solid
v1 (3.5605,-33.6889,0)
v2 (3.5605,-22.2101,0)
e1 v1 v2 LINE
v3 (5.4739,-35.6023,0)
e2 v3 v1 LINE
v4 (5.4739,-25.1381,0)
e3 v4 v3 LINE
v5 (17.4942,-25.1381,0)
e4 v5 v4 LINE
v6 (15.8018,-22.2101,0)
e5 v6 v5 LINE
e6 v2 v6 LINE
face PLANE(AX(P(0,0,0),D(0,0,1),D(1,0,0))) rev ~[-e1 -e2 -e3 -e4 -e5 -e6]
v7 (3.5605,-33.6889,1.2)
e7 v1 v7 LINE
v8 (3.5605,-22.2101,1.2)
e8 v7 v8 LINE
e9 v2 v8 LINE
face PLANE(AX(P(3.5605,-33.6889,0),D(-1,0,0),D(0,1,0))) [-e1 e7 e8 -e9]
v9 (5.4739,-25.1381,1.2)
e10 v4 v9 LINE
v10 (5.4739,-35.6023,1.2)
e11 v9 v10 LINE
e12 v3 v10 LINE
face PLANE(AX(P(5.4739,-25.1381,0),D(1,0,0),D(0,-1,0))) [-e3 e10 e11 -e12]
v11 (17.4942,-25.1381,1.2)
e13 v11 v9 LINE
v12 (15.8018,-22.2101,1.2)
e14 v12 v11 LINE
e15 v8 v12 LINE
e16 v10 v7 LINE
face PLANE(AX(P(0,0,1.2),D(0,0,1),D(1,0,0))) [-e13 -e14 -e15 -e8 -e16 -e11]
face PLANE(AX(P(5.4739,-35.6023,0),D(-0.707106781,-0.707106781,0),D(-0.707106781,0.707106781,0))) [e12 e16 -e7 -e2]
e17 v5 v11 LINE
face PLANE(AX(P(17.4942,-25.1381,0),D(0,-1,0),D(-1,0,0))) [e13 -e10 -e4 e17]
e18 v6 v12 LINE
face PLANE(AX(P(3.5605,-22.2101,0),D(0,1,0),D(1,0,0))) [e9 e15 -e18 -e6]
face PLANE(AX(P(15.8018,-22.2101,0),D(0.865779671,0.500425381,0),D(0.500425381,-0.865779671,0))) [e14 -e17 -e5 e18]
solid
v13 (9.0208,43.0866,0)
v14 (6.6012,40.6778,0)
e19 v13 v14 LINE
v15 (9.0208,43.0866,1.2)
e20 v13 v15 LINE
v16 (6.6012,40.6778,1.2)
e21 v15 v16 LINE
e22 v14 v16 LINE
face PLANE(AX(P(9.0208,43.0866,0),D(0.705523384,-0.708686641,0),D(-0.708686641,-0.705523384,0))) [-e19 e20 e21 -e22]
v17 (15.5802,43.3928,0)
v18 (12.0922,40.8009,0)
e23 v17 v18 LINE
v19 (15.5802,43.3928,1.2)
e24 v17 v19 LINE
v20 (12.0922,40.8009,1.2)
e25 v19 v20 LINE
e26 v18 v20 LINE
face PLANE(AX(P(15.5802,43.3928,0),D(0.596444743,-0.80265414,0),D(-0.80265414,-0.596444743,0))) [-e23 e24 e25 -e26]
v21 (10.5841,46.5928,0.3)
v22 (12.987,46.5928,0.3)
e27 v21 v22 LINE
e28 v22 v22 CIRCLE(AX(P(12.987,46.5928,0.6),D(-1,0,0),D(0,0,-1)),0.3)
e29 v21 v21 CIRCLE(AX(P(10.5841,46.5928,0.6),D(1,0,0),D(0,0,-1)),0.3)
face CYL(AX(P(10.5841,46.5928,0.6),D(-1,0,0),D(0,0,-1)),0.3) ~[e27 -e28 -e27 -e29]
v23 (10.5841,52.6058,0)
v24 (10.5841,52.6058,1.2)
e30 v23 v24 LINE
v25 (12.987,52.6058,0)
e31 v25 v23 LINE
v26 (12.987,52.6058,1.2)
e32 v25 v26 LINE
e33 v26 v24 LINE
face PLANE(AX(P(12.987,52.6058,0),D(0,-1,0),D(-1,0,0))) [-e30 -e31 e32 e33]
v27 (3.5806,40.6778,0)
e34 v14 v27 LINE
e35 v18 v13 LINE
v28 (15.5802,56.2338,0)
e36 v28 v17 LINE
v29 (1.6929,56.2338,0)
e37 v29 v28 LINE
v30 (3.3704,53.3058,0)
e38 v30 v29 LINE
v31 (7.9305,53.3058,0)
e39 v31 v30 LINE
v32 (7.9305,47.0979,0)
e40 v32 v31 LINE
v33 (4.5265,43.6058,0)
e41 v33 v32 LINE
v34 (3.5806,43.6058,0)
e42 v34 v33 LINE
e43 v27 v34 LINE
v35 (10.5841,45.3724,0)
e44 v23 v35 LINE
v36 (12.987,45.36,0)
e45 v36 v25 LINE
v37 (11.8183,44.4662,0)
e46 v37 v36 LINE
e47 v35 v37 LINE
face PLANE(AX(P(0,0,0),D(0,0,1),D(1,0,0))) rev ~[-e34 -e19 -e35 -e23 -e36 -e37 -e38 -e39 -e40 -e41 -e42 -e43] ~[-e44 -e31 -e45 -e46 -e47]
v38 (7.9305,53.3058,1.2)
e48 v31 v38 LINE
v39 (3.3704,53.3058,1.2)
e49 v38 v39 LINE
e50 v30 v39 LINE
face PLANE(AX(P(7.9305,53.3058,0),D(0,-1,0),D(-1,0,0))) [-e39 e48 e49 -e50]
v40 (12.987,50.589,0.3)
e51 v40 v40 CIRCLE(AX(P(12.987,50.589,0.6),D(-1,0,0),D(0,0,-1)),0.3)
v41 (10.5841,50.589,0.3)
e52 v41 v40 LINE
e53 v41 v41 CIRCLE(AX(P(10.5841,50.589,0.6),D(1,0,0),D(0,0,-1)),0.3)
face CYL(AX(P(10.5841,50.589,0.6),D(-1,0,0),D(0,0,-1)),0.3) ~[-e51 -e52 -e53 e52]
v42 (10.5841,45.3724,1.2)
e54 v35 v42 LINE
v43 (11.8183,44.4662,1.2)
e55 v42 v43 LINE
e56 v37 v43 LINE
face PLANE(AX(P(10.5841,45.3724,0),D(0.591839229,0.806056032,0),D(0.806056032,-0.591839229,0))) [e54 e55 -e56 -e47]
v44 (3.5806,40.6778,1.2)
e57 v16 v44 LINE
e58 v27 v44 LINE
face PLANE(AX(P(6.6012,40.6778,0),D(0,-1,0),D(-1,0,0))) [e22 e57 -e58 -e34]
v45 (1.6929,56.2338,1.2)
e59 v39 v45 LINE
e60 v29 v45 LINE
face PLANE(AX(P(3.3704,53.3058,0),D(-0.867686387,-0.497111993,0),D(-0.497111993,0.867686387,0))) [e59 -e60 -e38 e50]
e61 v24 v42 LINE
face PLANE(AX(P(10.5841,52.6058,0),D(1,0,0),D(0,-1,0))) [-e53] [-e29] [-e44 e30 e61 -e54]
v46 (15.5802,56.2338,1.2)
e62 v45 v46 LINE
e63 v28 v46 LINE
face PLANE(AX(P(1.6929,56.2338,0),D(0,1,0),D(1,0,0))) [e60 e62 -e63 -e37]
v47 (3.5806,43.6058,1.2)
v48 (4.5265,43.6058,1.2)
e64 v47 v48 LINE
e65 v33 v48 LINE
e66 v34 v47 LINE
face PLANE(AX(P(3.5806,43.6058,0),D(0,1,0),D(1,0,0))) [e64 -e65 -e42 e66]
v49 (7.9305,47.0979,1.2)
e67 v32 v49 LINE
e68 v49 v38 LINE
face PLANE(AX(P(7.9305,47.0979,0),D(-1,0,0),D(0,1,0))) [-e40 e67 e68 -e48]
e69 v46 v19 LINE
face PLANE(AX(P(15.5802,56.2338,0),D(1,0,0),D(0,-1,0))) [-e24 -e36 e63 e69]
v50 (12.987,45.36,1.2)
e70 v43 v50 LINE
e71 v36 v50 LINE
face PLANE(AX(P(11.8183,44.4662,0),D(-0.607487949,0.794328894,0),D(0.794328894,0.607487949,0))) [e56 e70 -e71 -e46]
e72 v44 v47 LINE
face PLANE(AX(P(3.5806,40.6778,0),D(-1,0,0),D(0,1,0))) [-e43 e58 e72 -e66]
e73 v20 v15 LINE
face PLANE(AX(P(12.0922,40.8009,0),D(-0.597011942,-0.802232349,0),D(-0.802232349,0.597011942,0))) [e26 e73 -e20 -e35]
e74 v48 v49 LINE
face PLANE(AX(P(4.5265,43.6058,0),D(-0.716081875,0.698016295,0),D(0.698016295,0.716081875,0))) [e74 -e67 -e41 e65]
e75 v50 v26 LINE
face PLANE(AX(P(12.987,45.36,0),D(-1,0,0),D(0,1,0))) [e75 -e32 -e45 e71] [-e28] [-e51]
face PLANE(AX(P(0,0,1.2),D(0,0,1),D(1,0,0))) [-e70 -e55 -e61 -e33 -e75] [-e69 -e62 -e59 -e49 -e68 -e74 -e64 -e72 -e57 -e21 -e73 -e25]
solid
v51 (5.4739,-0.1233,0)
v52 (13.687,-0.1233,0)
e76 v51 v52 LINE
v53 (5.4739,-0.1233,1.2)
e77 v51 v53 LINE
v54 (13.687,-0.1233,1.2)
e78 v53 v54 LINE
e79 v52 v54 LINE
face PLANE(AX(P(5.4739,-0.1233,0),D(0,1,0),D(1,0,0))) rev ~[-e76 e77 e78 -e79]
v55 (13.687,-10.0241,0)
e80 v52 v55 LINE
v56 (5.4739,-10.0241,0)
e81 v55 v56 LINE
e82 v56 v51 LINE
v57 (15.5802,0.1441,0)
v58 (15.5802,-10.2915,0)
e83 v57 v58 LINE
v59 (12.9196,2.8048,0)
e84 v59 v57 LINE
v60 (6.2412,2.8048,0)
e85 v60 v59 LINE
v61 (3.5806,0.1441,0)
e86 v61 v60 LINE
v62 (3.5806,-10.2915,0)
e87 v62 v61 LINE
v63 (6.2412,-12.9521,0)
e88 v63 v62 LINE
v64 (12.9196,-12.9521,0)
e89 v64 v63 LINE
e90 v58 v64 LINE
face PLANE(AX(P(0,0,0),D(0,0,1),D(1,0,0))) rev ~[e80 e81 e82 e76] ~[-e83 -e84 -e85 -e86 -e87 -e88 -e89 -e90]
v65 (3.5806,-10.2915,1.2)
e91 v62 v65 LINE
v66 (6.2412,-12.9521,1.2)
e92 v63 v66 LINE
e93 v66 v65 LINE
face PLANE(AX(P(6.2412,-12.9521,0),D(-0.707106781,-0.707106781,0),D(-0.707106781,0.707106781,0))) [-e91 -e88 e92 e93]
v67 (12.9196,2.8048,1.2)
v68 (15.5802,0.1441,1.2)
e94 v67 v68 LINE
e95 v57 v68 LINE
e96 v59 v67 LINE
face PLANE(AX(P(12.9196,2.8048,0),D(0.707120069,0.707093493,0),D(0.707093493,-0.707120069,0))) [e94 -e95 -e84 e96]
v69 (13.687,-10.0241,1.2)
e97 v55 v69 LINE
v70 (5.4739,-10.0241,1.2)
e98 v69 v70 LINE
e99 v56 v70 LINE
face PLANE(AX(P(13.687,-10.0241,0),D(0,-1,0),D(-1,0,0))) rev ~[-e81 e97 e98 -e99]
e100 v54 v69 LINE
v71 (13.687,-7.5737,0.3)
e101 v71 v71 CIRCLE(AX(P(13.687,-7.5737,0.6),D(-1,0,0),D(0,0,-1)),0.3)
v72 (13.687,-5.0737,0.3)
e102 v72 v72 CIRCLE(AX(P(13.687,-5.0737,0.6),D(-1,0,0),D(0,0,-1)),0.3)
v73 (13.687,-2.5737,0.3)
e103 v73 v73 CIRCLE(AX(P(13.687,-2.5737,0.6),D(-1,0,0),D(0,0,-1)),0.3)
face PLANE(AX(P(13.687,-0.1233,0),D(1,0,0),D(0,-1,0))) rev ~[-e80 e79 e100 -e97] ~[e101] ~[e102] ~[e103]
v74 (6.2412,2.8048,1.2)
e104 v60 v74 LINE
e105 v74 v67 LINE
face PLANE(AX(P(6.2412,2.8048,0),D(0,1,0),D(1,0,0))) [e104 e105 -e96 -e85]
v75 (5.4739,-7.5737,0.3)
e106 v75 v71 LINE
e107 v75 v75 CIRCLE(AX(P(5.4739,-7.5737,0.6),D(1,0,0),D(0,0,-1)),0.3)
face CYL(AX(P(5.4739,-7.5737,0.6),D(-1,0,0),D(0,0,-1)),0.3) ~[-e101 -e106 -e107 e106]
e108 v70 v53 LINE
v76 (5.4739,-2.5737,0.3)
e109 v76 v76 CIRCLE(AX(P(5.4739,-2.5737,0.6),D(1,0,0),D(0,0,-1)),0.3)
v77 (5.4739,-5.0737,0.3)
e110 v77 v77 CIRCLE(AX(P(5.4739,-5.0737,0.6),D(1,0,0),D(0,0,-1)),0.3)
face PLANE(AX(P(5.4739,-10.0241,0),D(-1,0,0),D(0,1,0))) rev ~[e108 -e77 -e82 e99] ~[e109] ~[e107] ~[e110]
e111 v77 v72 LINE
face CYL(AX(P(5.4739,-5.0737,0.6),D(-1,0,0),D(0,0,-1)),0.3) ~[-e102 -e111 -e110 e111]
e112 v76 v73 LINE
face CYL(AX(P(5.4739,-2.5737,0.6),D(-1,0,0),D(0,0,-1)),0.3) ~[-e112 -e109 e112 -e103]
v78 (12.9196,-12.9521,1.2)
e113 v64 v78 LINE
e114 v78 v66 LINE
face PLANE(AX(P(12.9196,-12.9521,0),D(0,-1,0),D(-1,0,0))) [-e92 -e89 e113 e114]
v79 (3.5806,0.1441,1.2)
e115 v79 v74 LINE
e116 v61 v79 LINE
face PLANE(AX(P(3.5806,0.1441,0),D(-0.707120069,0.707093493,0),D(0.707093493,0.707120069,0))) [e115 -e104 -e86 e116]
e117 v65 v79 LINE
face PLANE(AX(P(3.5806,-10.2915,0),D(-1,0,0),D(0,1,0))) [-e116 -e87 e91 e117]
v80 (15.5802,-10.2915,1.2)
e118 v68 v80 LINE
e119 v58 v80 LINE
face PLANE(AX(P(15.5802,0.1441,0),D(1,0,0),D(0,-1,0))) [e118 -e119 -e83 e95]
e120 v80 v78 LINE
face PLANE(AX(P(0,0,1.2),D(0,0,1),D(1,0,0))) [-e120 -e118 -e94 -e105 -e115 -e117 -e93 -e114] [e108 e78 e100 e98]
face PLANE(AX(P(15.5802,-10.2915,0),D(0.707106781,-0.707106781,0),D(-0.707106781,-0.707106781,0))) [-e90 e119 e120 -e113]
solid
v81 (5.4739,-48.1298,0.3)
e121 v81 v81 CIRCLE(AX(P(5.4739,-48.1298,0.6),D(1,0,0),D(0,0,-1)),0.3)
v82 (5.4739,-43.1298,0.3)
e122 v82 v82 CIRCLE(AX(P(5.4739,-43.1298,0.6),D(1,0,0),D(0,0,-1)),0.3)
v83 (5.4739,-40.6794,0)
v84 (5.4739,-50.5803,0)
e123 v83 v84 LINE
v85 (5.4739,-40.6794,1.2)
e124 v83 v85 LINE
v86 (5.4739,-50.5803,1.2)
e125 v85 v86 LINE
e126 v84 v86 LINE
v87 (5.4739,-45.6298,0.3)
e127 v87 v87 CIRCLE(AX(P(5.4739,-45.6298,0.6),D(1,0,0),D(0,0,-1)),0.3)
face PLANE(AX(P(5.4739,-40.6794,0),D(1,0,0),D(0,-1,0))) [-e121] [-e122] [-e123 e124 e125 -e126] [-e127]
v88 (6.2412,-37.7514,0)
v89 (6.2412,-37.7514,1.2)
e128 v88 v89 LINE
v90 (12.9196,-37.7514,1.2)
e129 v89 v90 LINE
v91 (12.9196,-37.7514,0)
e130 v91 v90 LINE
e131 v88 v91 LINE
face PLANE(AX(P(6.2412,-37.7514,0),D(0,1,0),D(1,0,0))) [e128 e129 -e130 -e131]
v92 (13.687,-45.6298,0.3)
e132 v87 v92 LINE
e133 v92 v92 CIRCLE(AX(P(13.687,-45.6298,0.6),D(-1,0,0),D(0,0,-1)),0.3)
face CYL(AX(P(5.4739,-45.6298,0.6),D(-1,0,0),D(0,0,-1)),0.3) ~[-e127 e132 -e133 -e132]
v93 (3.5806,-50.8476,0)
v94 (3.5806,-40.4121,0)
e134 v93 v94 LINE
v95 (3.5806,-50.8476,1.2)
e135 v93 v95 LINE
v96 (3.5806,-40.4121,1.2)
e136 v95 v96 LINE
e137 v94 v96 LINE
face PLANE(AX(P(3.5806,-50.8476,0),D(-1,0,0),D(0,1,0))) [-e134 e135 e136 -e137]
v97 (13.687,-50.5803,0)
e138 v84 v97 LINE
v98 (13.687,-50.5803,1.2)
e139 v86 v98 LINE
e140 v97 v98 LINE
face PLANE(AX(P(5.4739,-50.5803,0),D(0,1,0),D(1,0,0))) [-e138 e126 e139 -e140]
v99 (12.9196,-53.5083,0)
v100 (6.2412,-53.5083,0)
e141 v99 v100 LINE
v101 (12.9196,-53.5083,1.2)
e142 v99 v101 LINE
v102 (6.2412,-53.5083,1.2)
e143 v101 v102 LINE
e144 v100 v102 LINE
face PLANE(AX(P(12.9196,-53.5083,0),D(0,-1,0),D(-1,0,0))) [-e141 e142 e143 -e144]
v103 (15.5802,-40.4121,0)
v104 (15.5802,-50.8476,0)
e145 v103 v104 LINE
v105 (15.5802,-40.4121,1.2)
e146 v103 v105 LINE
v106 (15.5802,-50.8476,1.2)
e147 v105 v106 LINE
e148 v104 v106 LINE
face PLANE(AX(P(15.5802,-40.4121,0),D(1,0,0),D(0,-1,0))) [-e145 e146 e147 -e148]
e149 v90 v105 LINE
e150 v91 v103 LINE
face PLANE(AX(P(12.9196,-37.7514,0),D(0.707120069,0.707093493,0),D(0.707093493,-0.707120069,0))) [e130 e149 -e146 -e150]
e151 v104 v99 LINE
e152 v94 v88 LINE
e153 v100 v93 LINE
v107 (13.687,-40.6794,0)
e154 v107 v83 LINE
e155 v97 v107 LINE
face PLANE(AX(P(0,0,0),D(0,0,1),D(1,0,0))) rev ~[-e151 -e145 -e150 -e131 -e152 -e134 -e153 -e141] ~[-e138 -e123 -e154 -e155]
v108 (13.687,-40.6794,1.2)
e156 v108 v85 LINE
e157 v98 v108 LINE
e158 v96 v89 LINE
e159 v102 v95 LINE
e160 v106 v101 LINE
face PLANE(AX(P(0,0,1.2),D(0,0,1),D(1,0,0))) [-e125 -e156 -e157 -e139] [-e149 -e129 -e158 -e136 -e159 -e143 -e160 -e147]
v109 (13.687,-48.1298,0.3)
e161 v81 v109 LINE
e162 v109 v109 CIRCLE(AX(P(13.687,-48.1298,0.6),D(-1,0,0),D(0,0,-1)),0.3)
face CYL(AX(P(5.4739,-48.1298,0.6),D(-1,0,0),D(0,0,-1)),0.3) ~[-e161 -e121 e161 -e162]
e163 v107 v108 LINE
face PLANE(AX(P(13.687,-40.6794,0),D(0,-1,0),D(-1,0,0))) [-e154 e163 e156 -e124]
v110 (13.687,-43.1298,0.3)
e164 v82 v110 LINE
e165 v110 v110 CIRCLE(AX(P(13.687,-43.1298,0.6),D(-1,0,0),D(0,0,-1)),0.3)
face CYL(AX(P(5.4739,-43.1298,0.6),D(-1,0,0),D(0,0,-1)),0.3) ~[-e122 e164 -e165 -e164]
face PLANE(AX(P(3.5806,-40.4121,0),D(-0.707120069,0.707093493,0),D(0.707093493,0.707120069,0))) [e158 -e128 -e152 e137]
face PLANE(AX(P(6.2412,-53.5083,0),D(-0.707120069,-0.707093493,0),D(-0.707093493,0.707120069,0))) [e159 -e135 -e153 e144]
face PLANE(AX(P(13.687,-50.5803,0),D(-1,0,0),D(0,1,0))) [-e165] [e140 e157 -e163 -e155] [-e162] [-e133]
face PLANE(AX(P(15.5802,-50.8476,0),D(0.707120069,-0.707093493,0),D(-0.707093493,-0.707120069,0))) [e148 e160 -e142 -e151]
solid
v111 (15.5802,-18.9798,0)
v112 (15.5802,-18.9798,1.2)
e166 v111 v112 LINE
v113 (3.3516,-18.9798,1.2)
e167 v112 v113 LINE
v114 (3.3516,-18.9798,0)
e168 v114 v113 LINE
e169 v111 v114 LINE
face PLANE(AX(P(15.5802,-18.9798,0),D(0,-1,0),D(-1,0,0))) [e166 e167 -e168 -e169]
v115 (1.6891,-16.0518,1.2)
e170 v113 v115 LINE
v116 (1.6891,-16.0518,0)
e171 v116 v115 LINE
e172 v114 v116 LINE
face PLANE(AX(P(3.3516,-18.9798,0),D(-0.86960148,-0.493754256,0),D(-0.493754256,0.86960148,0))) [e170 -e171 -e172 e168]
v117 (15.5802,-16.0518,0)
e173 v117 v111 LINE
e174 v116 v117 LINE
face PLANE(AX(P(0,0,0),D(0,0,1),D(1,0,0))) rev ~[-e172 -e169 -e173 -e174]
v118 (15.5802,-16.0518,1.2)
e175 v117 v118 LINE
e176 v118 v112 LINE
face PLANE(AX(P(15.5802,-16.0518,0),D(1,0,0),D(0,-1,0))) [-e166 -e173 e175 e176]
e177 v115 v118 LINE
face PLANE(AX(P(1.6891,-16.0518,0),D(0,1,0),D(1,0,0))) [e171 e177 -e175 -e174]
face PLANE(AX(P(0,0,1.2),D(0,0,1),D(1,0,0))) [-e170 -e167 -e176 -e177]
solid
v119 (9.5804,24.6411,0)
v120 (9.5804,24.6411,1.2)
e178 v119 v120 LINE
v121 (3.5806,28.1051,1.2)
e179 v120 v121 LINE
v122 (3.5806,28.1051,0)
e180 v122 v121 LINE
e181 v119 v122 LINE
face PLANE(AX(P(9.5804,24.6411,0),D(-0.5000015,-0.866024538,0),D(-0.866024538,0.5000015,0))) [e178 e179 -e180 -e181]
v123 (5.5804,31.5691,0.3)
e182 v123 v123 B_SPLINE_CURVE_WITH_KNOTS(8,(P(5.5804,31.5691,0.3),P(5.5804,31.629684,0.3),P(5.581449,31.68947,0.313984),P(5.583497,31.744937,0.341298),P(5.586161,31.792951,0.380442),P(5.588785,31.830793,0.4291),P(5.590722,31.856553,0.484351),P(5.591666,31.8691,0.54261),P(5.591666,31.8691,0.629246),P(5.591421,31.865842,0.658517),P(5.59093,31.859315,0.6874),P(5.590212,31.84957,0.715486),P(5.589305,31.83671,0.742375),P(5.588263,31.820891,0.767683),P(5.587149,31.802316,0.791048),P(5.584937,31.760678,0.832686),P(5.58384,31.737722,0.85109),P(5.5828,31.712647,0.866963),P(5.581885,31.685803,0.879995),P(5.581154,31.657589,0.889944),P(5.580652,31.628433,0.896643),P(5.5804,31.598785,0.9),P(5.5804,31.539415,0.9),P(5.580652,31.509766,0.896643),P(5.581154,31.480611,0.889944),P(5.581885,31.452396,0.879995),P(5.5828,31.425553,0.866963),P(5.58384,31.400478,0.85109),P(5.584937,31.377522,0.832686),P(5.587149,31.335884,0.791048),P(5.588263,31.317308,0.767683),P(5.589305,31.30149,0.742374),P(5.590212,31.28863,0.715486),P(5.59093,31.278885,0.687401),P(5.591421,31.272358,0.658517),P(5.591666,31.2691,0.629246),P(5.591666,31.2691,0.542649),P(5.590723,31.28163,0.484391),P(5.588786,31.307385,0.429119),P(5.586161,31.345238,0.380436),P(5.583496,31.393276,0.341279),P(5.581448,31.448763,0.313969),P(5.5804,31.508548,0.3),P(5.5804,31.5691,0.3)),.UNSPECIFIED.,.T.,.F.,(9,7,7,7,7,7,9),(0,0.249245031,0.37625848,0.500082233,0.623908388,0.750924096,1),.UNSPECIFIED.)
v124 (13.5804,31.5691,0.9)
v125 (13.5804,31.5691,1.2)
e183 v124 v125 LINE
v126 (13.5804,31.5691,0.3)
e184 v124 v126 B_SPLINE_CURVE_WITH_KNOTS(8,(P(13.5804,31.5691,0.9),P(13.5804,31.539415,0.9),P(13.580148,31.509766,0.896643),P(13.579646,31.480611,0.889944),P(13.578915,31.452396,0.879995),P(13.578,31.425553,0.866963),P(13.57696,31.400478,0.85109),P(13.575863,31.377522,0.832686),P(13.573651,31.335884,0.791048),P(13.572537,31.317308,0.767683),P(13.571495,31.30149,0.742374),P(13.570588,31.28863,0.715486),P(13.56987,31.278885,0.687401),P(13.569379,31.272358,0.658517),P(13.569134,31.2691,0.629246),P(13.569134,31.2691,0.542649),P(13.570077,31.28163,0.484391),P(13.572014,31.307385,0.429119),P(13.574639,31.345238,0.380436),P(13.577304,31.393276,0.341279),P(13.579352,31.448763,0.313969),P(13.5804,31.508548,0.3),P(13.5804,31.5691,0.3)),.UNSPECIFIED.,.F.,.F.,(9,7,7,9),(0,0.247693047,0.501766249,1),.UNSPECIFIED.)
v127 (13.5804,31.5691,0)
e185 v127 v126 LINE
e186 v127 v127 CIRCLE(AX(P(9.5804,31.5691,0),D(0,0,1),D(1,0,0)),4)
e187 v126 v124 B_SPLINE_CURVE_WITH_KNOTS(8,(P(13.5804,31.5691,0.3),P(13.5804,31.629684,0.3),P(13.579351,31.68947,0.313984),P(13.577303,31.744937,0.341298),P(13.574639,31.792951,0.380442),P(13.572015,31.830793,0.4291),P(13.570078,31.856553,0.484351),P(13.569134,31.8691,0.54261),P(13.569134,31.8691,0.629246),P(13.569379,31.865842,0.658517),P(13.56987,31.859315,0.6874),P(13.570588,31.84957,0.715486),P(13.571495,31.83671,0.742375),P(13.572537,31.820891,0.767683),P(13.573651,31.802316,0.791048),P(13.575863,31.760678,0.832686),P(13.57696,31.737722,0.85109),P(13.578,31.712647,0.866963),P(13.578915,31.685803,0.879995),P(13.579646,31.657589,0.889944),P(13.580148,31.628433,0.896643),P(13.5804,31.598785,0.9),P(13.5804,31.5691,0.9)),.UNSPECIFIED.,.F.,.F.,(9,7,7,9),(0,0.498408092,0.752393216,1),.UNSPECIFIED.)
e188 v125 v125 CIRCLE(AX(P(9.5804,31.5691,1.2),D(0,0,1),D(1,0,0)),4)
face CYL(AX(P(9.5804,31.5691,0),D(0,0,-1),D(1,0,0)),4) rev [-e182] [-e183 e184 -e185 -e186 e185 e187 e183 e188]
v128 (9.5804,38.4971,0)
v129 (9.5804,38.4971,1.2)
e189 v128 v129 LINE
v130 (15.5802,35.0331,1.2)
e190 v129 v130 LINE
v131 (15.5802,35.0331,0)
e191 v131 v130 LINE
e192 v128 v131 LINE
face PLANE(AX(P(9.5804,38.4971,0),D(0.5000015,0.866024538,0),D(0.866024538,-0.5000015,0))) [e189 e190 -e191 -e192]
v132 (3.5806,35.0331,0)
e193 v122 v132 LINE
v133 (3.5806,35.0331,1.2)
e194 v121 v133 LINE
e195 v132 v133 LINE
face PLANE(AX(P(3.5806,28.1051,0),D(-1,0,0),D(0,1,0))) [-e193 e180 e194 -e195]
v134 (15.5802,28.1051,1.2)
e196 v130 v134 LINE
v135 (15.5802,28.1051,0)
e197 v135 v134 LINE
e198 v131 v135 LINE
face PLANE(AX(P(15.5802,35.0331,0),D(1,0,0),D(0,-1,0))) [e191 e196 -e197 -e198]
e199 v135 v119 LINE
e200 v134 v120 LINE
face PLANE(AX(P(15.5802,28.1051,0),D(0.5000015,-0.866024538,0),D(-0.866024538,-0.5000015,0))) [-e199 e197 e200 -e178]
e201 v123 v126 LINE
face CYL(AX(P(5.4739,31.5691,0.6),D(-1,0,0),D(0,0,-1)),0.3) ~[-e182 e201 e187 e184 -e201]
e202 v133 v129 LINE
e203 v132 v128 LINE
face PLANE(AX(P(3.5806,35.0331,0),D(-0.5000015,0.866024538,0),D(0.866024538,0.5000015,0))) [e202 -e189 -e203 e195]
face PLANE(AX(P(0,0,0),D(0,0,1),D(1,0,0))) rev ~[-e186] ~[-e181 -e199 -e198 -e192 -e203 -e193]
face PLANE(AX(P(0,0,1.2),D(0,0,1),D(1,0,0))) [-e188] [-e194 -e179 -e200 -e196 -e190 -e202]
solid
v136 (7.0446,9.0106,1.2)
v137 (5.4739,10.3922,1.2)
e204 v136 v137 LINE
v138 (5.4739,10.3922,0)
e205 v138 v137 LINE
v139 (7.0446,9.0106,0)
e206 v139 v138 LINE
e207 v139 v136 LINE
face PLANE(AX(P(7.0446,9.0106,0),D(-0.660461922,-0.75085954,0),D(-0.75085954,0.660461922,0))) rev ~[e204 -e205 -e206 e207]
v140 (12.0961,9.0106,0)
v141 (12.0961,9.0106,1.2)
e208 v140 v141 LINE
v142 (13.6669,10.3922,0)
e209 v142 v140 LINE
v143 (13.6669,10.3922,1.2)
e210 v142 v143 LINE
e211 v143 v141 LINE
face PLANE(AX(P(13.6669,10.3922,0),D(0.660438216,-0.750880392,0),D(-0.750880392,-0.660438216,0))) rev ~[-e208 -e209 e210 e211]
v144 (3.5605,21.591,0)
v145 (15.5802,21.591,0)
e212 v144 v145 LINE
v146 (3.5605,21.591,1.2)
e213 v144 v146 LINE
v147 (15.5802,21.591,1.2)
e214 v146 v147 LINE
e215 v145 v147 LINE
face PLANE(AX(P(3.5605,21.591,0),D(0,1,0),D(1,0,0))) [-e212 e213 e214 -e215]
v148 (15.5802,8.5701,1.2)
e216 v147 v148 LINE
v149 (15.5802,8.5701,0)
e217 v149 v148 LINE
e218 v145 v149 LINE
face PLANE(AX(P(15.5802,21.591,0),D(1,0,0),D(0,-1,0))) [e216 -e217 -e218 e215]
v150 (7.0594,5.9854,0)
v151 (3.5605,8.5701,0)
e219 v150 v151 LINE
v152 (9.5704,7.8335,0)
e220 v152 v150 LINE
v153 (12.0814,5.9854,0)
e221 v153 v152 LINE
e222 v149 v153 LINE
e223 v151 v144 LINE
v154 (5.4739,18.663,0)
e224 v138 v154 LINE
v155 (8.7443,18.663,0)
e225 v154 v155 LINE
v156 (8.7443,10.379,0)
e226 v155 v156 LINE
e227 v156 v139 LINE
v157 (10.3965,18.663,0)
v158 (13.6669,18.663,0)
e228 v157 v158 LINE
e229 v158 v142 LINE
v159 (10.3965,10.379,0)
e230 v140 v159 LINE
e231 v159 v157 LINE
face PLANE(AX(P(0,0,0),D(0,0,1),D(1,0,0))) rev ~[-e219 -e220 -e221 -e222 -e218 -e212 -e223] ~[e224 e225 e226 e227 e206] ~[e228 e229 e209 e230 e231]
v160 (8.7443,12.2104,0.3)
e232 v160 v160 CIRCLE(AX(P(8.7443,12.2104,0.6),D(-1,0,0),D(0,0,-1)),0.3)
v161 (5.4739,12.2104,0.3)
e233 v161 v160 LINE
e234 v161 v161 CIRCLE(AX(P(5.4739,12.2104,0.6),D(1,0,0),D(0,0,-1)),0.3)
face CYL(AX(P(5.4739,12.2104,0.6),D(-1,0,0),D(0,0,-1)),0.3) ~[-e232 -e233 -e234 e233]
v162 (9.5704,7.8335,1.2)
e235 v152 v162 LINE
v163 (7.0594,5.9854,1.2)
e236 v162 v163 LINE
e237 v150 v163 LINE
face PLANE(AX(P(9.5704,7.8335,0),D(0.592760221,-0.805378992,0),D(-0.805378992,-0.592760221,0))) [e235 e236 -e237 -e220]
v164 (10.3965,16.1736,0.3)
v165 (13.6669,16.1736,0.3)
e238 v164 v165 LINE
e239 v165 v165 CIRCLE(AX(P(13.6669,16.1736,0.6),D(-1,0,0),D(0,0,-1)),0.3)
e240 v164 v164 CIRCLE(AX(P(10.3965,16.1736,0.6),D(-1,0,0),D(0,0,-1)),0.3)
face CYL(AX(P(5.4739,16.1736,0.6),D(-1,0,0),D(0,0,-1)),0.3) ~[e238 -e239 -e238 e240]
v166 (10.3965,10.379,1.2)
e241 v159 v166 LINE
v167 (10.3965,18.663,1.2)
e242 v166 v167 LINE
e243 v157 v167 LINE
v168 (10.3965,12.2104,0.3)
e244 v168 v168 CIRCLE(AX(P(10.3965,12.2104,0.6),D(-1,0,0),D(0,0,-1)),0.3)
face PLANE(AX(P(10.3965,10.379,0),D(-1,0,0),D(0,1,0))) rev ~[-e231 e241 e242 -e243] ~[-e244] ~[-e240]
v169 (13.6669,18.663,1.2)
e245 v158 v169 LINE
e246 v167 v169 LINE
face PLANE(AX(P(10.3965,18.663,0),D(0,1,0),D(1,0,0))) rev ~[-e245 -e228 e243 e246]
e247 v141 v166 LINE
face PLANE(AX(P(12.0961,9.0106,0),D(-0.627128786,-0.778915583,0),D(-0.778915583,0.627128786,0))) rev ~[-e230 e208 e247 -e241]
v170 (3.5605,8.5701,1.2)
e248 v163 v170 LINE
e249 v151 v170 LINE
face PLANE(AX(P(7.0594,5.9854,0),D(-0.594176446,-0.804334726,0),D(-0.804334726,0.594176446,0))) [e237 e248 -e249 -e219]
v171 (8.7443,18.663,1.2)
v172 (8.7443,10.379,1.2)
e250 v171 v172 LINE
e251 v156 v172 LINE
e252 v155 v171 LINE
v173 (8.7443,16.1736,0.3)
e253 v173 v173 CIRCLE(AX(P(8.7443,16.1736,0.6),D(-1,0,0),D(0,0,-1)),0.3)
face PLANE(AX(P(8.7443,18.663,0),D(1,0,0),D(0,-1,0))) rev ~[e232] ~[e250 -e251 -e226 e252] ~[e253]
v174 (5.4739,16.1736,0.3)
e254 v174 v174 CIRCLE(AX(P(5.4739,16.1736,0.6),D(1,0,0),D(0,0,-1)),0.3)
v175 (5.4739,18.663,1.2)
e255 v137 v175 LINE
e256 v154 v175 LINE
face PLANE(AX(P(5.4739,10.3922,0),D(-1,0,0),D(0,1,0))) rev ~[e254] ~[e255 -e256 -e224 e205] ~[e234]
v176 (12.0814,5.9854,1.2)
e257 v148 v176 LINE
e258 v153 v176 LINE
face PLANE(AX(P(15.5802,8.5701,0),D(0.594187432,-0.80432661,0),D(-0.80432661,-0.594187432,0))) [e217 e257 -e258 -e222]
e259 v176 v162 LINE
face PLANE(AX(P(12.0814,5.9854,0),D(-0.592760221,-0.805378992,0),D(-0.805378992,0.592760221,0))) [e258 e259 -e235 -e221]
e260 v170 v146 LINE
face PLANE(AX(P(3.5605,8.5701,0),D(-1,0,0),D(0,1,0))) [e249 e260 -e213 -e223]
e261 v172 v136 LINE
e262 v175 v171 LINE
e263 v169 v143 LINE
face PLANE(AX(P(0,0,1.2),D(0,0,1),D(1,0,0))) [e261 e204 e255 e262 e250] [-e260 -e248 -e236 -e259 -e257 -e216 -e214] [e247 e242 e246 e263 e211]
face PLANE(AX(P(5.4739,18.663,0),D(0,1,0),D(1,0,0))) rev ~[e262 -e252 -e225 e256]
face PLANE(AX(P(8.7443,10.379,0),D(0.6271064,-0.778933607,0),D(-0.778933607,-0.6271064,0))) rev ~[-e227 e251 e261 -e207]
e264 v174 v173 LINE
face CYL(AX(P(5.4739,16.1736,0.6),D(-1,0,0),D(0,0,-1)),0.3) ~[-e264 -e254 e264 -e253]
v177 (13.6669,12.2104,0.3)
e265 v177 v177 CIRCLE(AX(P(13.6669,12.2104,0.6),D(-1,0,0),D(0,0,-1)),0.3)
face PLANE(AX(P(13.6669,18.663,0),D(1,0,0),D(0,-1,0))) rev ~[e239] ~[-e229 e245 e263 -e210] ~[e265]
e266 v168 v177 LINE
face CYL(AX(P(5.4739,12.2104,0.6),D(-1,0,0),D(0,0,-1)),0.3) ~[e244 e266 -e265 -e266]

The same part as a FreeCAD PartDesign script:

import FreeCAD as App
import Part
import Sketcher
from FreeCAD import Vector
Q = App.Units.Quantity


def add_polygon(sketch, points):
    """Adds a closed chain of lines whose ends are joined by coincident constraints."""
    first, n = sketch.GeometryCount, len(points)
    for a, b in zip(points, points[1:] + points[:1]):
        sketch.addGeometry(Part.LineSegment(App.Vector(*a, 0), App.Vector(*b, 0)), False)
    for i in range(n):
        sketch.addConstraint(Sketcher.Constraint("Coincident", first + i, 2, first + (i + 1) % n, 1))

doc = App.newDocument("Part")
body = doc.addObject("PartDesign::Body", "Body")
body.AllowCompound = True

# Sketch on XY plane
sketch1 = doc.addObject("Sketcher::SketchObject", "Sketch")
body.addObject(sketch1)
sketch1.AttachmentSupport = (doc.XY_Plane, [""])
sketch1.MapMode = "FlatFace"
add_polygon(sketch1, [(12.0922, 40.8009), (15.5802, 43.3928), (15.5802, 56.2338), (1.6929, 56.2338), (3.3704, 53.3058), (7.9305, 53.3058), (7.9305, 47.0979), (4.5265, 43.6058), (3.5806, 43.6058), (3.5806, 40.6778), (6.6012, 40.6778), (9.0208, 43.0866)])  # lines 0-11
add_polygon(sketch1, [(12.987, 45.36), (11.8183, 44.4662), (10.5841, 45.3724), (10.5841, 52.6058), (12.987, 52.6058)])  # lines 12-16
add_polygon(sketch1, [(15.5802, 28.1051), (15.5802, 35.0331), (9.5804, 38.4971), (3.5806, 35.0331), (3.5806, 28.1051), (9.5804, 24.6411)])  # lines 17-22
sketch1.addGeometry(Part.Circle(Vector(9.5804, 31.5691, 0), Vector(0, 0, 1), 4), False)  # 23
add_polygon(sketch1, [(12.0814, 5.9854), (15.5802, 8.5701), (15.5802, 21.591), (3.5605, 21.591), (3.5605, 8.5701), (7.0594, 5.9854), (9.5704, 7.8335)])  # lines 24-30
add_polygon(sketch1, [(5.4739, 18.663), (8.7443, 18.663), (8.7443, 10.379), (7.0446, 9.0106), (5.4739, 10.3922)])  # lines 31-35
add_polygon(sketch1, [(10.3965, 18.663), (13.6669, 18.663), (13.6669, 10.3922), (12.0961, 9.0106), (10.3965, 10.379)])  # lines 36-40
add_polygon(sketch1, [(12.9196, -12.9521), (15.5802, -10.2915), (15.5802, 0.1441), (12.9196, 2.8048), (6.2412, 2.8048), (3.5806, 0.1441), (3.5806, -10.2915), (6.2412, -12.9521)])  # lines 41-48
add_polygon(sketch1, [(5.4739, -0.1233), (13.687, -0.1233), (13.687, -10.0241), (5.4739, -10.0241)])  # lines 49-52
add_polygon(sketch1, [(3.3516, -18.9798), (15.5802, -18.9798), (15.5802, -16.0518), (1.6891, -16.0518)])  # lines 53-56
add_polygon(sketch1, [(5.4739, -25.1381), (17.4942, -25.1381), (15.8018, -22.2101), (3.5605, -22.2101), (3.5605, -33.6889), (5.4739, -35.6023)])  # lines 57-62
add_polygon(sketch1, [(15.5802, -40.4121), (12.9196, -37.7514), (6.2412, -37.7514), (3.5806, -40.4121), (3.5806, -50.8476), (6.2412, -53.5083), (12.9196, -53.5083), (15.5802, -50.8476)])  # lines 63-70
add_polygon(sketch1, [(5.4739, -50.5803), (5.4739, -40.6794), (13.687, -40.6794), (13.687, -50.5803)])  # lines 71-74
sketch1.addConstraint([
    Sketcher.Constraint("Vertical", 1),
    Sketcher.Constraint("Horizontal", 2),
    Sketcher.Constraint("Horizontal", 4),
    Sketcher.Constraint("Vertical", 5),
    Sketcher.Constraint("Horizontal", 7),
    Sketcher.Constraint("Vertical", 8),
    Sketcher.Constraint("Horizontal", 9),
    Sketcher.Constraint("Vertical", 14),
    Sketcher.Constraint("Horizontal", 15),
    Sketcher.Constraint("Vertical", 16),
    Sketcher.Constraint("Vertical", 17),
    Sketcher.Constraint("Vertical", 20),
    Sketcher.Constraint("Vertical", 25),
    Sketcher.Constraint("Horizontal", 26),
    Sketcher.Constraint("Vertical", 27),
    Sketcher.Constraint("Horizontal", 31),
    Sketcher.Constraint("Vertical", 32),
    Sketcher.Constraint("Vertical", 35),
    Sketcher.Constraint("Horizontal", 36),
    Sketcher.Constraint("Vertical", 37),
    Sketcher.Constraint("Vertical", 40),
    Sketcher.Constraint("Vertical", 42),
    Sketcher.Constraint("Horizontal", 44),
    Sketcher.Constraint("Vertical", 46),
    Sketcher.Constraint("Horizontal", 48),
    Sketcher.Constraint("Horizontal", 49),
    Sketcher.Constraint("Vertical", 50),
    Sketcher.Constraint("Horizontal", 51),
    Sketcher.Constraint("Vertical", 52),
    Sketcher.Constraint("Horizontal", 53),
    Sketcher.Constraint("Vertical", 54),
    Sketcher.Constraint("Horizontal", 55),
    Sketcher.Constraint("Horizontal", 57),
    Sketcher.Constraint("Horizontal", 59),
    Sketcher.Constraint("Vertical", 60),
    Sketcher.Constraint("Vertical", 62),
    Sketcher.Constraint("Horizontal", 64),
    Sketcher.Constraint("Vertical", 66),
    Sketcher.Constraint("Horizontal", 68),
    Sketcher.Constraint("Vertical", 70),
    Sketcher.Constraint("Vertical", 71),
    Sketcher.Constraint("Horizontal", 72),
    Sketcher.Constraint("Vertical", 73),
    Sketcher.Constraint("Horizontal", 74),
    Sketcher.Constraint("Parallel", 18, 21),
    Sketcher.Constraint("Parallel", 19, 22),
    Sketcher.Constraint("Perpendicular", 41, 43),
    Sketcher.Constraint("Perpendicular", 43, 45),
    Sketcher.Constraint("Perpendicular", 45, 47),
    Sketcher.Constraint("Perpendicular", 22, 58),
    Sketcher.Constraint("Parallel", 47, 61),
    Sketcher.Constraint("Parallel", 61, 63),
    Sketcher.Constraint("Perpendicular", 63, 65),
    Sketcher.Constraint("Perpendicular", 65, 67),
    Sketcher.Constraint("Perpendicular", 67, 69),
    Sketcher.Constraint("Horizontal", 17, 2, 19, 2),
    Sketcher.Constraint("Horizontal", 20, 2, 22, 2),
    Sketcher.Constraint("Horizontal", 24, 2, 27, 2),
    Sketcher.Constraint("Horizontal", 28, 2, 30, 2),
    Sketcher.Constraint("Horizontal", 35, 2, 36, 2),
    Sketcher.Constraint("Horizontal", 34, 2, 37, 2),
    Sketcher.Constraint("Horizontal", 33, 2, 38, 2),
    Sketcher.Constraint("Horizontal", 32, 2, 39, 2),
    Sketcher.Constraint("Horizontal", 42, 2, 45, 2),
    Sketcher.Constraint("Horizontal", 41, 2, 46, 2),
    Sketcher.Constraint("Horizontal", 66, 2, 69, 2),
    Sketcher.Constraint("Horizontal", 65, 2, 70, 2),
    Sketcher.Constraint("Vertical", 1, 2, 17, 2),
    Sketcher.Constraint("Vertical", 23, 3, 18, 2),
    Sketcher.Constraint("Vertical", 8, 2, 19, 2),
    Sketcher.Constraint("Vertical", 18, 2, 21, 2),
    Sketcher.Constraint("Vertical", 22, 2, 24, 2),
    Sketcher.Constraint("Vertical", 25, 2, 41, 2),
    Sketcher.Constraint("Vertical", 20, 2, 45, 2),
    Sketcher.Constraint("Vertical", 44, 2, 47, 2),
    Sketcher.Constraint("Vertical", 43, 2, 48, 2),
    Sketcher.Constraint("Vertical", 35, 2, 51, 2),
    Sketcher.Constraint("Vertical", 42, 2, 53, 2),
    Sketcher.Constraint("Vertical", 27, 2, 59, 2),
    Sketcher.Constraint("Vertical", 52, 2, 61, 2),
    Sketcher.Constraint("Vertical", 48, 2, 63, 2),
    Sketcher.Constraint("Vertical", 47, 2, 64, 2),
    Sketcher.Constraint("Vertical", 46, 2, 65, 2),
    Sketcher.Constraint("Vertical", 64, 2, 67, 2),
    Sketcher.Constraint("Vertical", 62, 2, 71, 2),
    Sketcher.Constraint("Vertical", 50, 2, 72, 2),
    Sketcher.Constraint("Equal", 31, 36),
    Sketcher.Constraint("Equal", 8, 54),
    Sketcher.Constraint("Equal", 46, 66),
    Sketcher.Constraint("Equal", 52, 71),
    Sketcher.Constraint("Equal", 24, 28),
    Sketcher.Constraint("Equal", 29, 30),
    Sketcher.Constraint("Equal", 34, 38),
    Sketcher.Constraint("Diameter", 23, 8.0),
    Sketcher.Constraint("Angle", 18, Q("150 deg")),
    Sketcher.Constraint("DistanceX", 4, 1, 4, 2, 4.56),
    Sketcher.Constraint("Angle", 3, Q("-60.191 deg")),
    Sketcher.Constraint("Distance", 24, 4.35),
    Sketcher.Constraint("DistanceX", 7, 2, 7, 1, 0.946),
    Sketcher.Constraint("DistanceX", 15, 1, 15, 2, 2.403),
    Sketcher.Constraint("DistanceX", 49, 1, 49, 2, 8.213),
    Sketcher.Constraint("DistanceX", 55, 2, 55, 1, 13.891),
    Sketcher.Constraint("DistanceY", 1, 1, 1, 2, 12.841),
    Sketcher.Constraint("DistanceY", 5, 2, 5, 1, 6.208),
    Sketcher.Constraint("DistanceY", 8, 2, 8, 1, 2.928),
    Sketcher.Constraint("DistanceY", 17, 1, 17, 2, 6.928),
    Sketcher.Constraint("DistanceY", 25, 1, 25, 2, 13.021),
    Sketcher.Constraint("DistanceY", 32, 2, 32, 1, 8.284),
    Sketcher.Constraint("DistanceY", 71, 1, 71, 2, 9.901),
    Sketcher.Constraint("DistanceY", -1, 1, 16, 2, 45.36),
    Sketcher.Constraint("DistanceY", -1, 1, 24, 2, 8.57),
    Sketcher.Constraint("DistanceY", 58, 2, -1, 1, 22.21),
    Sketcher.Constraint("Distance", 18, 6.928),
    Sketcher.Constraint("Distance", 33, 2.182),
    Sketcher.Constraint("Distance", 38, 2.092),
    Sketcher.Constraint("Distance", 56, 3.367),
    Sketcher.Constraint("Distance", 58, 3.382),
    Sketcher.Constraint("Distance", 61, 2.706),
    Sketcher.Constraint("DistanceX", 2, 2, 2, 1, 13.8873),
    Sketcher.Constraint("DistanceX", 9, 1, 9, 2, 3.0206),
    Sketcher.Constraint("DistanceX", 26, 2, 26, 1, 12.0197),
    Sketcher.Constraint("DistanceX", 31, 1, 31, 2, 3.2704),
    Sketcher.Constraint("DistanceX", 44, 2, 44, 1, 6.6784),
    Sketcher.Constraint("DistanceX", 57, 1, 57, 2, 12.0203),
    Sketcher.Constraint("DistanceY", 14, 1, 14, 2, 7.2334),
    Sketcher.Constraint("DistanceY", 16, 2, 16, 1, 7.2458),
    Sketcher.Constraint("DistanceY", 35, 1, 35, 2, 8.2708),
    Sketcher.Constraint("DistanceY", 42, 1, 42, 2, 10.4356),
    Sketcher.Constraint("DistanceY", 60, 2, 60, 1, 11.4788),
    Sketcher.Constraint("DistanceY", -1, 1, 23, 3, 31.569),
    Sketcher.Constraint("DistanceX", -1, 1, 2, 2, 1.693),
    Sketcher.Constraint("DistanceY", -1, 1, 5, 2, 47.098),
    Sketcher.Constraint("DistanceY", -1, 1, 11, 2, 40.801),
    Sketcher.Constraint("DistanceX", -1, 1, 13, 2, 10.584),
    Sketcher.Constraint("DistanceY", -1, 1, 17, 2, 35.033),
    Sketcher.Constraint("DistanceY", -1, 1, 31, 2, 18.663),
    Sketcher.Constraint("DistanceX", -1, 1, 36, 2, 13.667),
    Sketcher.Constraint("DistanceY", -1, 1, 42, 2, 0.144),
    Sketcher.Constraint("DistanceY", 50, 2, -1, 1, 10.024),
    Sketcher.Constraint("DistanceY", 65, 2, -1, 1, 40.412),
    Sketcher.Constraint("Distance", 0, 4.3456),
    Sketcher.Constraint("Distance", 3, 3.3745),
    Sketcher.Constraint("Distance", 6, 4.8767),
    Sketcher.Constraint("Distance", 10, 3.4142),
    Sketcher.Constraint("Distance", 11, 3.8286),
    Sketcher.Constraint("Distance", 12, 1.4713),
    Sketcher.Constraint("Distance", 13, 1.5312),
    Sketcher.Constraint("Distance", 29, 3.1178),
    Sketcher.Constraint("DistanceX", -1, 1, 28, 2, 7.0594),
    Sketcher.Constraint("DistanceY", 53, 2, -1, 1, 18.9798),
    Sketcher.Constraint("DistanceY", 71, 2, -1, 1, 40.6794),
])
pad1 = doc.addObject("PartDesign::Pad", "Pad")
body.addObject(pad1)
pad1.Profile = sketch1
pad1.Length = 1.2

# Sketch on YZ plane
sketch2 = doc.addObject("Sketcher::SketchObject", "Sketch001")
body.addObject(sketch2)
sketch2.AttachmentSupport = (doc.YZ_Plane, [""])
sketch2.MapMode = "FlatFace"
sketch2.AttachmentOffset = App.Placement(Vector(0, 0, 5.4739), App.Rotation())
sketch2.addGeometry([
    Part.Circle(Vector(-2.5737, 0.6, 0), Vector(0, 0, 1), 0.3),  # 0
    Part.Circle(Vector(-7.5737, 0.6, 0), Vector(0, 0, 1), 0.3),  # 1
    Part.Circle(Vector(-5.0737, 0.6, 0), Vector(0, 0, 1), 0.3),  # 2
    Part.Circle(Vector(-43.1298, 0.6, 0), Vector(0, 0, 1), 0.3),  # 3
    Part.Circle(Vector(-45.6298, 0.6, 0), Vector(0, 0, 1), 0.3),  # 4
    Part.Circle(Vector(-48.1298, 0.6, 0), Vector(0, 0, 1), 0.3),  # 5
], False)
sketch2.addConstraint([
    Sketcher.Constraint("Equal", 0, 1),
    Sketcher.Constraint("Equal", 1, 2),
    Sketcher.Constraint("Equal", 2, 3),
    Sketcher.Constraint("Equal", 3, 4),
    Sketcher.Constraint("Equal", 4, 5),
    Sketcher.Constraint("Horizontal", 0, 3, 1, 3),
    Sketcher.Constraint("Horizontal", 1, 3, 2, 3),
    Sketcher.Constraint("Horizontal", 2, 3, 3, 3),
    Sketcher.Constraint("Horizontal", 3, 3, 4, 3),
    Sketcher.Constraint("Horizontal", 4, 3, 5, 3),
    Sketcher.Constraint("Diameter", 0, 0.6),
    Sketcher.Constraint("DistanceY", -1, 1, 0, 3, 0.6),
    Sketcher.Constraint("DistanceX", 2, 3, 0, 3, 2.5),
    Sketcher.Constraint("DistanceX", 1, 3, 2, 3, 2.5),
    Sketcher.Constraint("DistanceX", 4, 3, 3, 3, 2.5),
    Sketcher.Constraint("DistanceX", 5, 3, 4, 3, 2.5),
    Sketcher.Constraint("DistanceX", 3, 3, 1, 3, 35.556),
    Sketcher.Constraint("DistanceX", 0, 3, -1, 1, 2.5737),
])
pad2 = doc.addObject("PartDesign::Pad", "Pad001")
body.addObject(pad2)
pad2.Profile = sketch2
pad2.Length = 9

# Sketch on YZ plane
sketch3 = doc.addObject("Sketcher::SketchObject", "Sketch002")
body.addObject(sketch3)
sketch3.AttachmentSupport = (doc.YZ_Plane, [""])
sketch3.MapMode = "FlatFace"
sketch3.AttachmentOffset = App.Placement(Vector(0, 0, 10.5841), App.Rotation())
sketch3.addGeometry([
    Part.Circle(Vector(50.589, 0.6, 0), Vector(0, 0, 1), 0.3),
    Part.Circle(Vector(46.5928, 0.6, 0), Vector(0, 0, 1), 0.3),
], False)
sketch3.addConstraint([
    Sketcher.Constraint("Equal", 0, 1),
    Sketcher.Constraint("Horizontal", 0, 3, 1, 3),
    Sketcher.Constraint("Diameter", 0, 0.6),
    Sketcher.Constraint("DistanceY", -1, 1, 0, 3, 0.6),
    Sketcher.Constraint("DistanceX", -1, 1, 0, 3, 50.589),
    Sketcher.Constraint("DistanceX", -1, 1, 1, 3, 46.5928),
])
pad3 = doc.addObject("PartDesign::Pad", "Pad002")
body.addObject(pad3)
pad3.Profile = sketch3
pad3.Length = 3

# Sketch on YZ plane
sketch4 = doc.addObject("Sketcher::SketchObject", "Sketch003")
body.addObject(sketch4)
sketch4.AttachmentSupport = (doc.YZ_Plane, [""])
sketch4.MapMode = "FlatFace"
sketch4.AttachmentOffset = App.Placement(Vector(0, 0, 5.4739), App.Rotation())
sketch4.addGeometry([
    Part.Circle(Vector(16.1736, 0.6, 0), Vector(0, 0, 1), 0.3),
    Part.Circle(Vector(12.2104, 0.6, 0), Vector(0, 0, 1), 0.3),
    Part.Circle(Vector(31.5691, 0.6, 0), Vector(0, 0, 1), 0.3),
], False)
sketch4.addConstraint([
    Sketcher.Constraint("Equal", 0, 1),
    Sketcher.Constraint("Equal", 1, 2),
    Sketcher.Constraint("Horizontal", 0, 3, 1, 3),
    Sketcher.Constraint("Horizontal", 1, 3, 2, 3),
    Sketcher.Constraint("Diameter", 0, 0.6),
    Sketcher.Constraint("DistanceY", -1, 1, 0, 3, 0.6),
    Sketcher.Constraint("DistanceX", -1, 1, 2, 3, 31.569),
    Sketcher.Constraint("DistanceX", -1, 1, 0, 3, 16.1736),
    Sketcher.Constraint("DistanceX", -1, 1, 1, 3, 12.2104),
])
pad4 = doc.addObject("PartDesign::Pad", "Pad003")
body.addObject(pad4)
pad4.Profile = sketch4
pad4.Length = 9.4

doc.recompute()
